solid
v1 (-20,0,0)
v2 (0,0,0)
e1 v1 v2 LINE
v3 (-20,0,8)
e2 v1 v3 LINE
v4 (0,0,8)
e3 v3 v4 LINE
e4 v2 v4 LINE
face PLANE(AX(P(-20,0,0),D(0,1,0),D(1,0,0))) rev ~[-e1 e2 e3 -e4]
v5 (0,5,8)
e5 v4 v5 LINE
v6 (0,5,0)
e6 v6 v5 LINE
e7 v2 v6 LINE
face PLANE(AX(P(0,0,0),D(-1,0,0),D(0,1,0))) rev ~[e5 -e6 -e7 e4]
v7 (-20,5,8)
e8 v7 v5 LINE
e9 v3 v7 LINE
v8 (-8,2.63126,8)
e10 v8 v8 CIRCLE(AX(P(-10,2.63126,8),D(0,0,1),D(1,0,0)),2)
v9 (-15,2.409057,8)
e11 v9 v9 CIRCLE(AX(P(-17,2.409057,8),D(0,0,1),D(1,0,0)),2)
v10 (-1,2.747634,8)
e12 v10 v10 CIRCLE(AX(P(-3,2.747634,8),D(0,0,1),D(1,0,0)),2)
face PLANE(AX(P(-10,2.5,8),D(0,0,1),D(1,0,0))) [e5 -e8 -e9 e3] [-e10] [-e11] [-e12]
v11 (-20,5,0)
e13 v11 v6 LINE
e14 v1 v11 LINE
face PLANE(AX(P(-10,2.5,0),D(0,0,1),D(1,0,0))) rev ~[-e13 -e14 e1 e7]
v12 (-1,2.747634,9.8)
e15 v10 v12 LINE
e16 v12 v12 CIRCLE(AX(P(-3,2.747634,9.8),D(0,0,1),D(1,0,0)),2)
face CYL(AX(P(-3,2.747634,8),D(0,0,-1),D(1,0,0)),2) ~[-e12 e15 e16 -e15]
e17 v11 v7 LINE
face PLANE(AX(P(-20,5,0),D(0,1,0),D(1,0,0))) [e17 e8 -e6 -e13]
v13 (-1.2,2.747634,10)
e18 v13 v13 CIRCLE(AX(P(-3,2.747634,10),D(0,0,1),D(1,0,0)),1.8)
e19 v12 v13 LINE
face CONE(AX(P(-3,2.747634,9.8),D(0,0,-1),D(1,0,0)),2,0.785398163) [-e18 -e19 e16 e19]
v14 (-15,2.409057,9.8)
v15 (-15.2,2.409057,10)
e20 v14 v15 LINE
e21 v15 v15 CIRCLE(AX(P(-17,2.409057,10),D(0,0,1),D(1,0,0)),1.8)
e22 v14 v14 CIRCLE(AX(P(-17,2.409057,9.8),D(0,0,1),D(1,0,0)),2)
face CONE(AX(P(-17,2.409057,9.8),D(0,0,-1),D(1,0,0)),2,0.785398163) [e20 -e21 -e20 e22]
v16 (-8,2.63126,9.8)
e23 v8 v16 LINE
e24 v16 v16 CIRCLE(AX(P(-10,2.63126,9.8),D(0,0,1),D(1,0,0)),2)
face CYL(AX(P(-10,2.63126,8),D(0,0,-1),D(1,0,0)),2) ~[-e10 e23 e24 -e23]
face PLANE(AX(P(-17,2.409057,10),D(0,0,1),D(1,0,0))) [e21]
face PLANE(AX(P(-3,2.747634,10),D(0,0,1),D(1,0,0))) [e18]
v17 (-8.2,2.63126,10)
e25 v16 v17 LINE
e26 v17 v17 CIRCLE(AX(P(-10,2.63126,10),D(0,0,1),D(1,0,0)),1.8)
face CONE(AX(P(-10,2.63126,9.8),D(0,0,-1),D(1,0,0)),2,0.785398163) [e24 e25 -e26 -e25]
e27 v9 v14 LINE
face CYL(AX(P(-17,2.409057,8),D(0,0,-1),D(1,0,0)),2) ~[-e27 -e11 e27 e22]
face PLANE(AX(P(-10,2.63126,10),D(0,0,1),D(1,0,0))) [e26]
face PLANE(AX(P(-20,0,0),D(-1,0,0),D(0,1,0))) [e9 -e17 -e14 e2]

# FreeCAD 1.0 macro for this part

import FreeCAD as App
import Part
import Sketcher
from FreeCAD import Vector
Q = App.Units.Quantity


def edges_at(feature, points):
    """Names of the edges that pass closest to the given points."""
    edges = feature.Shape.Edges
    near = lambda p: min(range(len(edges)), key=lambda i: edges[i].distToShape(Part.Vertex(*p))[0])
    return sorted({f"Edge{near(p) + 1}" for p in points})


def add_polygon(sketch, points):
    """Adds a closed chain of lines whose ends are joined by coincident constraints."""
    first, n = sketch.GeometryCount, len(points)
    for a, b in zip(points, points[1:] + points[:1]):
        sketch.addGeometry(Part.LineSegment(App.Vector(*a, 0), App.Vector(*b, 0)), False)
    for i in range(n):
        sketch.addConstraint(Sketcher.Constraint("Coincident", first + i, 2, first + (i + 1) % n, 1))

doc = App.newDocument("Part")
body = doc.addObject("PartDesign::Body", "Body")

sketch1 = body.newObject("Sketcher::SketchObject", "Sketch")
sketch1.AttachmentSupport = (doc.getObject("XY_Plane"), [""])
sketch1.MapMode = "FlatFace"
add_polygon(sketch1, [(-20, 5), (-20, 0), (0, 0), (0, 5)])
sketch1.addConstraint(Sketcher.Constraint("Vertical", 0))
sketch1.addConstraint(Sketcher.Constraint("Horizontal", 1))
sketch1.addConstraint(Sketcher.Constraint("Vertical", 2))
sketch1.addConstraint(Sketcher.Constraint("Horizontal", 3))
sketch1.addConstraint(Sketcher.Constraint("Coincident", 1, 2, -1, 1))
sketch1.addConstraint(Sketcher.Constraint("DistanceX", 1, 1, 1, 2, Q("20 mm")))
sketch1.addConstraint(Sketcher.Constraint("DistanceY", 0, 2, 0, 1, Q("5 mm")))
pad1 = body.newObject("PartDesign::Pad", "Pad")
pad1.Profile = sketch1
pad1.Length = 8

sketch2 = body.newObject("Sketcher::SketchObject", "Sketch001")
sketch2.AttachmentSupport = (doc.getObject("XY_Plane"), [""])
sketch2.MapMode = "FlatFace"
sketch2.AttachmentOffset = App.Placement(Vector(0, 0, 8), App.Rotation())
sketch2.addGeometry(Part.Circle(Vector(-17, 2.409057, 0), Vector(0, 0, 1), 2), False)
sketch2.addGeometry(Part.Circle(Vector(-10, 2.63126, 0), Vector(0, 0, 1), 2), False)
sketch2.addGeometry(Part.Circle(Vector(-3, 2.747634, 0), Vector(0, 0, 1), 2), False)
sketch2.addConstraint(Sketcher.Constraint("Equal", 0, 1))
sketch2.addConstraint(Sketcher.Constraint("Equal", 1, 2))
sketch2.addConstraint(Sketcher.Constraint("Diameter", 0, Q("4 mm")))
sketch2.addConstraint(Sketcher.Constraint("DistanceX", 0, 3, -1, 1, Q("17 mm")))
sketch2.addConstraint(Sketcher.Constraint("DistanceX", 1, 3, -1, 1, Q("10 mm")))
sketch2.addConstraint(Sketcher.Constraint("DistanceX", 2, 3, -1, 1, Q("3 mm")))
sketch2.addConstraint(Sketcher.Constraint("DistanceY", -1, 1, 1, 3, Q("2.63126 mm")))
sketch2.addConstraint(Sketcher.Constraint("DistanceY", -1, 1, 0, 3, Q("2.409057 mm")))
sketch2.addConstraint(Sketcher.Constraint("DistanceY", -1, 1, 2, 3, Q("2.747634 mm")))
pad2 = body.newObject("PartDesign::Pad", "Pad001")
pad2.Profile = sketch2
pad2.Length = 2
doc.recompute()

chamfer = body.newObject("PartDesign::Chamfer", "Chamfer")
chamfer.Base = (pad2, edges_at(pad2, [(-19, 2.409, 10), (-12, 2.631, 10), (-5, 2.748, 10)]))
chamfer.Size = 0.2

doc.recompute()
